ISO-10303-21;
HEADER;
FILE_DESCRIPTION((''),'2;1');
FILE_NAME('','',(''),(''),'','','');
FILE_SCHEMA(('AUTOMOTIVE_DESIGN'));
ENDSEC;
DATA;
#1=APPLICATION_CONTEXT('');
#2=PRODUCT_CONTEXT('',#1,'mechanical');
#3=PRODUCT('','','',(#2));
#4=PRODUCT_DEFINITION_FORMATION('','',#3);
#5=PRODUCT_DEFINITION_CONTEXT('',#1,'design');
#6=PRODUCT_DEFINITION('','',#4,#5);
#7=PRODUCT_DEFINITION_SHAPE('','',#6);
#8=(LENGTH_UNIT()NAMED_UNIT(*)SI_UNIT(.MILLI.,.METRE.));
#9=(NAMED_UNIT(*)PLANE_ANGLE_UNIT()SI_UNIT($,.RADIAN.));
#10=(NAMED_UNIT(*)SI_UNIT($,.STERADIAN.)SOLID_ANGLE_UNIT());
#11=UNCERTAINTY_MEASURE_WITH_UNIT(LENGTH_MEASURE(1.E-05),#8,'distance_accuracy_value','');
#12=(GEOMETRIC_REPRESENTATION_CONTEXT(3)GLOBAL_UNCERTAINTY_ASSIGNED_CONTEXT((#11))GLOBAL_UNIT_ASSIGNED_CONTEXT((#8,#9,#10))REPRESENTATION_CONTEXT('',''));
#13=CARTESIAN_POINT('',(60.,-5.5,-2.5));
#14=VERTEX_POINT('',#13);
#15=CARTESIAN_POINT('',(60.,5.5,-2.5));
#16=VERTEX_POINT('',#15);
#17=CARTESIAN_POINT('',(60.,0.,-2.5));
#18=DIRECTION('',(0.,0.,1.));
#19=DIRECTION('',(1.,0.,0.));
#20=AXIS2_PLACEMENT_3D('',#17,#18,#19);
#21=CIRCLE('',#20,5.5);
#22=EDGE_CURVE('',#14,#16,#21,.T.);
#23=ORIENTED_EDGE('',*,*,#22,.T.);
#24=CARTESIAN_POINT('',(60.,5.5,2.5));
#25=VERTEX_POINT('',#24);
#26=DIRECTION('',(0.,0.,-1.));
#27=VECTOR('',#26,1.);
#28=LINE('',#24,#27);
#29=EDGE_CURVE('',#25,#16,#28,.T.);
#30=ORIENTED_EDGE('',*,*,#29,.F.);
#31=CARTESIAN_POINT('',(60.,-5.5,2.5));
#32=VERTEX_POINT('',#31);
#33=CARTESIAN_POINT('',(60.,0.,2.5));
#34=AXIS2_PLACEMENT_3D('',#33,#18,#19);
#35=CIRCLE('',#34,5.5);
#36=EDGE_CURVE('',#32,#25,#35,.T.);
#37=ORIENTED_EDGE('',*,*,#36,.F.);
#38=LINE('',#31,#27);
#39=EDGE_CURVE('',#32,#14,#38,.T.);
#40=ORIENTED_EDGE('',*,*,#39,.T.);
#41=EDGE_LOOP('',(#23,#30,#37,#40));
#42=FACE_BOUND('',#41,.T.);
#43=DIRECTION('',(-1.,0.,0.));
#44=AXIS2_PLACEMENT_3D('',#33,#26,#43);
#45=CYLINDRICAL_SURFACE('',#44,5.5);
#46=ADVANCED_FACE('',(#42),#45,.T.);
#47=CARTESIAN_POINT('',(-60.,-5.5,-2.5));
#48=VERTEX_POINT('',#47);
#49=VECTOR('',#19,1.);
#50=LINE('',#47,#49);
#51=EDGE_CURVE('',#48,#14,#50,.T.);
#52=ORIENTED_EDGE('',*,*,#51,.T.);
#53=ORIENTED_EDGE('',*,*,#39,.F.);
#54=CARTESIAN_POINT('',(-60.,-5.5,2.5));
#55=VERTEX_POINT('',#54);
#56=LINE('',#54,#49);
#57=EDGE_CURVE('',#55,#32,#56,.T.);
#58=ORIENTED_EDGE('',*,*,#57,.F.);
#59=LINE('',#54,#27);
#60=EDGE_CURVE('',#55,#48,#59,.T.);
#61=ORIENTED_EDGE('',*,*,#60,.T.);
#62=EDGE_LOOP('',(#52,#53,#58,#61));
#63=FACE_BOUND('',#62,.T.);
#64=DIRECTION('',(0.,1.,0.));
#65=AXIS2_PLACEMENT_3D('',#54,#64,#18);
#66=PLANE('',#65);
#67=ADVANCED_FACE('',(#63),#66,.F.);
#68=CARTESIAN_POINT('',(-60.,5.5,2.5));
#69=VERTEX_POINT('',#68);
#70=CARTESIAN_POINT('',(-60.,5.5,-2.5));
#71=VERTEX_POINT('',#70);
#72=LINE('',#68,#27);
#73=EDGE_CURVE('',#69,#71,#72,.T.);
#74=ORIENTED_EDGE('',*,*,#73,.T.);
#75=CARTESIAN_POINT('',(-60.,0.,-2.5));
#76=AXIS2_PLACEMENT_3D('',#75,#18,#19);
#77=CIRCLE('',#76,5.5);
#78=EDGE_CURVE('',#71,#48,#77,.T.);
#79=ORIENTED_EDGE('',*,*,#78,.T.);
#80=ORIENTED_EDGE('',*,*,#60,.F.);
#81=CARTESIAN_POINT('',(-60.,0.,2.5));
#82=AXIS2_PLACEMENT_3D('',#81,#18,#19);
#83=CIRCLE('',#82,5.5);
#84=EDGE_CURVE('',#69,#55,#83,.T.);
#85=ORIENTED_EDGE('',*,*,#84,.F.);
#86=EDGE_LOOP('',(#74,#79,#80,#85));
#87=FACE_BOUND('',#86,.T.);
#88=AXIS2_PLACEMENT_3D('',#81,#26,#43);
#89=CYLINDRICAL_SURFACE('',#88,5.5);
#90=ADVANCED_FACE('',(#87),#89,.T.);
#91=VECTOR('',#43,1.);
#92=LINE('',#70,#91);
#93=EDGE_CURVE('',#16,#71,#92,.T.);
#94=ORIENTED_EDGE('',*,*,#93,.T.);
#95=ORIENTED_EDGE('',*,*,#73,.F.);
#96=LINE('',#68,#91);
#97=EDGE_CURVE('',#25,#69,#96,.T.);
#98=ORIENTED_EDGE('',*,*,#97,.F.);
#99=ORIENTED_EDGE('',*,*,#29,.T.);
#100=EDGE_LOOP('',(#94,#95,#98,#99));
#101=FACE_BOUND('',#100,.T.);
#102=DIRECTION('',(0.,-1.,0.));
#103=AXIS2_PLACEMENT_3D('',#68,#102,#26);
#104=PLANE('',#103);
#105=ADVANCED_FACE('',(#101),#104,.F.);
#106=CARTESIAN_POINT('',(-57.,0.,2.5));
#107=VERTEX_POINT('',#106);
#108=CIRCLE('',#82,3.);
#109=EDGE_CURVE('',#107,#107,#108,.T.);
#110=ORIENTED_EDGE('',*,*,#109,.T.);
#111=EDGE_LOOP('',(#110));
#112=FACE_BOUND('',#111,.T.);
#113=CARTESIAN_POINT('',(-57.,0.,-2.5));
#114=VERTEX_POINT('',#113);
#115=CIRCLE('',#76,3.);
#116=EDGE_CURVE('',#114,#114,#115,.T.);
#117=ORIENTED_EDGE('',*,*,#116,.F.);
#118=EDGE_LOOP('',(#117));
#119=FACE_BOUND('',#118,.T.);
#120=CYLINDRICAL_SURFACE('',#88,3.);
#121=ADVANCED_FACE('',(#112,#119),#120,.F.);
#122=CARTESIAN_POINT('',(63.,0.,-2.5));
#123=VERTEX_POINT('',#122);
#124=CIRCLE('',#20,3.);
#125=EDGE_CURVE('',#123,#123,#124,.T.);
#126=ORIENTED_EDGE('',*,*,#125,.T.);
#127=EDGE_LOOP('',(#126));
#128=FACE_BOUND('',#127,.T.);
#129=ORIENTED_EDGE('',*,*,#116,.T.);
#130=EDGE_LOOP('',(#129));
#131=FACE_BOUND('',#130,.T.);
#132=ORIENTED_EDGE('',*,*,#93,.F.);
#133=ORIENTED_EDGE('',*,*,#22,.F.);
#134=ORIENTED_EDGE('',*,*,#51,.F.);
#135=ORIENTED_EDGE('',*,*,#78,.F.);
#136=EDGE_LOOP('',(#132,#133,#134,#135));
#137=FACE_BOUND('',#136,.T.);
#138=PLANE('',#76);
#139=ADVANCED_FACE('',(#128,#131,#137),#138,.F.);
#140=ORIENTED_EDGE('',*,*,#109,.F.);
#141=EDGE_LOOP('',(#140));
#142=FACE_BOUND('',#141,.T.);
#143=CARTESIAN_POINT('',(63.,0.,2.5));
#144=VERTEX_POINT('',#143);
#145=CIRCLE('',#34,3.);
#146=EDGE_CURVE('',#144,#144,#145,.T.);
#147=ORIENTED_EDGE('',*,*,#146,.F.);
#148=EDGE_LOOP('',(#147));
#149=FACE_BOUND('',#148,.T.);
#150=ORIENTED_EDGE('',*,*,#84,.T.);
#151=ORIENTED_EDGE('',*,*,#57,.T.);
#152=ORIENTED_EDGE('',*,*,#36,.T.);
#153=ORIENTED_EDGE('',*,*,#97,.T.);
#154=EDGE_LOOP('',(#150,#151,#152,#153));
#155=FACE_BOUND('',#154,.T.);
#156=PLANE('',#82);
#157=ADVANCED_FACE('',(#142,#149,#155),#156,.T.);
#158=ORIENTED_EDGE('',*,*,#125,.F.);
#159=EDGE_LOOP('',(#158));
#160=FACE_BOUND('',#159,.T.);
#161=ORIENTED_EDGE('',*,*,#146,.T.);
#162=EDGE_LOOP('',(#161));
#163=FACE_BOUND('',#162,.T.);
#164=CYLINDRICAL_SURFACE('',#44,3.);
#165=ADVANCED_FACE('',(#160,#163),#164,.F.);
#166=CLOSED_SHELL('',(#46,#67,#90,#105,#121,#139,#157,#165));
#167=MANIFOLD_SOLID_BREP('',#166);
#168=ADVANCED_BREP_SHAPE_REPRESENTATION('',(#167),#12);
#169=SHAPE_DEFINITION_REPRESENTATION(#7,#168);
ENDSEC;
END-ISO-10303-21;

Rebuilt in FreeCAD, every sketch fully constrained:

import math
import FreeCAD as App
import Part
import Sketcher
Q = App.Units.Quantity

doc = App.newDocument("Part")
body = doc.addObject("PartDesign::Body", "Body")

sketch1 = body.newObject("Sketcher::SketchObject", "Sketch")
sketch1.AttachmentSupport = (doc.getObject("XY_Plane"), [""])
sketch1.MapMode = "FlatFace"
sketch1.addGeometry([
    Part.LineSegment(App.Vector(60, 5.5, 0), App.Vector(-60, 5.5, 0)),
    Part.ArcOfCircle(Part.Circle(App.Vector(-60, 0, 0), App.Vector(0, 0, 1), 5.5), math.radians(90), math.radians(270)),
    Part.LineSegment(App.Vector(-60, -5.5, 0), App.Vector(60, -5.5, 0)),
    Part.ArcOfCircle(Part.Circle(App.Vector(60, 0, 0), App.Vector(0, 0, 1), 5.5), math.radians(-90), math.radians(90)),
    Part.Circle(App.Vector(60, 0, 0), App.Vector(0, 0, 1), 3),
    Part.Circle(App.Vector(-60, 0, 0), App.Vector(0, 0, 1), 3),
], False)
sketch1.addConstraint([
    Sketcher.Constraint("Tangent", 0, 2, 1, 1),
    Sketcher.Constraint("Tangent", 1, 2, 2, 1),
    Sketcher.Constraint("Tangent", 2, 2, 3, 1),
    Sketcher.Constraint("Tangent", 3, 2, 0, 1),
    Sketcher.Constraint("Horizontal", 0),
    Sketcher.Constraint("Horizontal", 2),
    Sketcher.Constraint("Coincident", 4, 3, 3, 3),
    Sketcher.Constraint("Coincident", 5, 3, 1, 3),
    Sketcher.Constraint("Equal", 4, 5),
    Sketcher.Constraint("Symmetric", 1, 3, 3, 3, -1, 1),
    Sketcher.Constraint("Diameter", 4, Q("6 mm")),
    Sketcher.Constraint("Radius", 1, Q("5.5 mm")),
    Sketcher.Constraint("DistanceX", 0, 2, 0, 1, Q("120 mm")),
])
pad1 = body.newObject("PartDesign::Pad", "Pad")
pad1.Profile = sketch1
pad1.Length = 5
pad1.Midplane = True

doc.recompute()
